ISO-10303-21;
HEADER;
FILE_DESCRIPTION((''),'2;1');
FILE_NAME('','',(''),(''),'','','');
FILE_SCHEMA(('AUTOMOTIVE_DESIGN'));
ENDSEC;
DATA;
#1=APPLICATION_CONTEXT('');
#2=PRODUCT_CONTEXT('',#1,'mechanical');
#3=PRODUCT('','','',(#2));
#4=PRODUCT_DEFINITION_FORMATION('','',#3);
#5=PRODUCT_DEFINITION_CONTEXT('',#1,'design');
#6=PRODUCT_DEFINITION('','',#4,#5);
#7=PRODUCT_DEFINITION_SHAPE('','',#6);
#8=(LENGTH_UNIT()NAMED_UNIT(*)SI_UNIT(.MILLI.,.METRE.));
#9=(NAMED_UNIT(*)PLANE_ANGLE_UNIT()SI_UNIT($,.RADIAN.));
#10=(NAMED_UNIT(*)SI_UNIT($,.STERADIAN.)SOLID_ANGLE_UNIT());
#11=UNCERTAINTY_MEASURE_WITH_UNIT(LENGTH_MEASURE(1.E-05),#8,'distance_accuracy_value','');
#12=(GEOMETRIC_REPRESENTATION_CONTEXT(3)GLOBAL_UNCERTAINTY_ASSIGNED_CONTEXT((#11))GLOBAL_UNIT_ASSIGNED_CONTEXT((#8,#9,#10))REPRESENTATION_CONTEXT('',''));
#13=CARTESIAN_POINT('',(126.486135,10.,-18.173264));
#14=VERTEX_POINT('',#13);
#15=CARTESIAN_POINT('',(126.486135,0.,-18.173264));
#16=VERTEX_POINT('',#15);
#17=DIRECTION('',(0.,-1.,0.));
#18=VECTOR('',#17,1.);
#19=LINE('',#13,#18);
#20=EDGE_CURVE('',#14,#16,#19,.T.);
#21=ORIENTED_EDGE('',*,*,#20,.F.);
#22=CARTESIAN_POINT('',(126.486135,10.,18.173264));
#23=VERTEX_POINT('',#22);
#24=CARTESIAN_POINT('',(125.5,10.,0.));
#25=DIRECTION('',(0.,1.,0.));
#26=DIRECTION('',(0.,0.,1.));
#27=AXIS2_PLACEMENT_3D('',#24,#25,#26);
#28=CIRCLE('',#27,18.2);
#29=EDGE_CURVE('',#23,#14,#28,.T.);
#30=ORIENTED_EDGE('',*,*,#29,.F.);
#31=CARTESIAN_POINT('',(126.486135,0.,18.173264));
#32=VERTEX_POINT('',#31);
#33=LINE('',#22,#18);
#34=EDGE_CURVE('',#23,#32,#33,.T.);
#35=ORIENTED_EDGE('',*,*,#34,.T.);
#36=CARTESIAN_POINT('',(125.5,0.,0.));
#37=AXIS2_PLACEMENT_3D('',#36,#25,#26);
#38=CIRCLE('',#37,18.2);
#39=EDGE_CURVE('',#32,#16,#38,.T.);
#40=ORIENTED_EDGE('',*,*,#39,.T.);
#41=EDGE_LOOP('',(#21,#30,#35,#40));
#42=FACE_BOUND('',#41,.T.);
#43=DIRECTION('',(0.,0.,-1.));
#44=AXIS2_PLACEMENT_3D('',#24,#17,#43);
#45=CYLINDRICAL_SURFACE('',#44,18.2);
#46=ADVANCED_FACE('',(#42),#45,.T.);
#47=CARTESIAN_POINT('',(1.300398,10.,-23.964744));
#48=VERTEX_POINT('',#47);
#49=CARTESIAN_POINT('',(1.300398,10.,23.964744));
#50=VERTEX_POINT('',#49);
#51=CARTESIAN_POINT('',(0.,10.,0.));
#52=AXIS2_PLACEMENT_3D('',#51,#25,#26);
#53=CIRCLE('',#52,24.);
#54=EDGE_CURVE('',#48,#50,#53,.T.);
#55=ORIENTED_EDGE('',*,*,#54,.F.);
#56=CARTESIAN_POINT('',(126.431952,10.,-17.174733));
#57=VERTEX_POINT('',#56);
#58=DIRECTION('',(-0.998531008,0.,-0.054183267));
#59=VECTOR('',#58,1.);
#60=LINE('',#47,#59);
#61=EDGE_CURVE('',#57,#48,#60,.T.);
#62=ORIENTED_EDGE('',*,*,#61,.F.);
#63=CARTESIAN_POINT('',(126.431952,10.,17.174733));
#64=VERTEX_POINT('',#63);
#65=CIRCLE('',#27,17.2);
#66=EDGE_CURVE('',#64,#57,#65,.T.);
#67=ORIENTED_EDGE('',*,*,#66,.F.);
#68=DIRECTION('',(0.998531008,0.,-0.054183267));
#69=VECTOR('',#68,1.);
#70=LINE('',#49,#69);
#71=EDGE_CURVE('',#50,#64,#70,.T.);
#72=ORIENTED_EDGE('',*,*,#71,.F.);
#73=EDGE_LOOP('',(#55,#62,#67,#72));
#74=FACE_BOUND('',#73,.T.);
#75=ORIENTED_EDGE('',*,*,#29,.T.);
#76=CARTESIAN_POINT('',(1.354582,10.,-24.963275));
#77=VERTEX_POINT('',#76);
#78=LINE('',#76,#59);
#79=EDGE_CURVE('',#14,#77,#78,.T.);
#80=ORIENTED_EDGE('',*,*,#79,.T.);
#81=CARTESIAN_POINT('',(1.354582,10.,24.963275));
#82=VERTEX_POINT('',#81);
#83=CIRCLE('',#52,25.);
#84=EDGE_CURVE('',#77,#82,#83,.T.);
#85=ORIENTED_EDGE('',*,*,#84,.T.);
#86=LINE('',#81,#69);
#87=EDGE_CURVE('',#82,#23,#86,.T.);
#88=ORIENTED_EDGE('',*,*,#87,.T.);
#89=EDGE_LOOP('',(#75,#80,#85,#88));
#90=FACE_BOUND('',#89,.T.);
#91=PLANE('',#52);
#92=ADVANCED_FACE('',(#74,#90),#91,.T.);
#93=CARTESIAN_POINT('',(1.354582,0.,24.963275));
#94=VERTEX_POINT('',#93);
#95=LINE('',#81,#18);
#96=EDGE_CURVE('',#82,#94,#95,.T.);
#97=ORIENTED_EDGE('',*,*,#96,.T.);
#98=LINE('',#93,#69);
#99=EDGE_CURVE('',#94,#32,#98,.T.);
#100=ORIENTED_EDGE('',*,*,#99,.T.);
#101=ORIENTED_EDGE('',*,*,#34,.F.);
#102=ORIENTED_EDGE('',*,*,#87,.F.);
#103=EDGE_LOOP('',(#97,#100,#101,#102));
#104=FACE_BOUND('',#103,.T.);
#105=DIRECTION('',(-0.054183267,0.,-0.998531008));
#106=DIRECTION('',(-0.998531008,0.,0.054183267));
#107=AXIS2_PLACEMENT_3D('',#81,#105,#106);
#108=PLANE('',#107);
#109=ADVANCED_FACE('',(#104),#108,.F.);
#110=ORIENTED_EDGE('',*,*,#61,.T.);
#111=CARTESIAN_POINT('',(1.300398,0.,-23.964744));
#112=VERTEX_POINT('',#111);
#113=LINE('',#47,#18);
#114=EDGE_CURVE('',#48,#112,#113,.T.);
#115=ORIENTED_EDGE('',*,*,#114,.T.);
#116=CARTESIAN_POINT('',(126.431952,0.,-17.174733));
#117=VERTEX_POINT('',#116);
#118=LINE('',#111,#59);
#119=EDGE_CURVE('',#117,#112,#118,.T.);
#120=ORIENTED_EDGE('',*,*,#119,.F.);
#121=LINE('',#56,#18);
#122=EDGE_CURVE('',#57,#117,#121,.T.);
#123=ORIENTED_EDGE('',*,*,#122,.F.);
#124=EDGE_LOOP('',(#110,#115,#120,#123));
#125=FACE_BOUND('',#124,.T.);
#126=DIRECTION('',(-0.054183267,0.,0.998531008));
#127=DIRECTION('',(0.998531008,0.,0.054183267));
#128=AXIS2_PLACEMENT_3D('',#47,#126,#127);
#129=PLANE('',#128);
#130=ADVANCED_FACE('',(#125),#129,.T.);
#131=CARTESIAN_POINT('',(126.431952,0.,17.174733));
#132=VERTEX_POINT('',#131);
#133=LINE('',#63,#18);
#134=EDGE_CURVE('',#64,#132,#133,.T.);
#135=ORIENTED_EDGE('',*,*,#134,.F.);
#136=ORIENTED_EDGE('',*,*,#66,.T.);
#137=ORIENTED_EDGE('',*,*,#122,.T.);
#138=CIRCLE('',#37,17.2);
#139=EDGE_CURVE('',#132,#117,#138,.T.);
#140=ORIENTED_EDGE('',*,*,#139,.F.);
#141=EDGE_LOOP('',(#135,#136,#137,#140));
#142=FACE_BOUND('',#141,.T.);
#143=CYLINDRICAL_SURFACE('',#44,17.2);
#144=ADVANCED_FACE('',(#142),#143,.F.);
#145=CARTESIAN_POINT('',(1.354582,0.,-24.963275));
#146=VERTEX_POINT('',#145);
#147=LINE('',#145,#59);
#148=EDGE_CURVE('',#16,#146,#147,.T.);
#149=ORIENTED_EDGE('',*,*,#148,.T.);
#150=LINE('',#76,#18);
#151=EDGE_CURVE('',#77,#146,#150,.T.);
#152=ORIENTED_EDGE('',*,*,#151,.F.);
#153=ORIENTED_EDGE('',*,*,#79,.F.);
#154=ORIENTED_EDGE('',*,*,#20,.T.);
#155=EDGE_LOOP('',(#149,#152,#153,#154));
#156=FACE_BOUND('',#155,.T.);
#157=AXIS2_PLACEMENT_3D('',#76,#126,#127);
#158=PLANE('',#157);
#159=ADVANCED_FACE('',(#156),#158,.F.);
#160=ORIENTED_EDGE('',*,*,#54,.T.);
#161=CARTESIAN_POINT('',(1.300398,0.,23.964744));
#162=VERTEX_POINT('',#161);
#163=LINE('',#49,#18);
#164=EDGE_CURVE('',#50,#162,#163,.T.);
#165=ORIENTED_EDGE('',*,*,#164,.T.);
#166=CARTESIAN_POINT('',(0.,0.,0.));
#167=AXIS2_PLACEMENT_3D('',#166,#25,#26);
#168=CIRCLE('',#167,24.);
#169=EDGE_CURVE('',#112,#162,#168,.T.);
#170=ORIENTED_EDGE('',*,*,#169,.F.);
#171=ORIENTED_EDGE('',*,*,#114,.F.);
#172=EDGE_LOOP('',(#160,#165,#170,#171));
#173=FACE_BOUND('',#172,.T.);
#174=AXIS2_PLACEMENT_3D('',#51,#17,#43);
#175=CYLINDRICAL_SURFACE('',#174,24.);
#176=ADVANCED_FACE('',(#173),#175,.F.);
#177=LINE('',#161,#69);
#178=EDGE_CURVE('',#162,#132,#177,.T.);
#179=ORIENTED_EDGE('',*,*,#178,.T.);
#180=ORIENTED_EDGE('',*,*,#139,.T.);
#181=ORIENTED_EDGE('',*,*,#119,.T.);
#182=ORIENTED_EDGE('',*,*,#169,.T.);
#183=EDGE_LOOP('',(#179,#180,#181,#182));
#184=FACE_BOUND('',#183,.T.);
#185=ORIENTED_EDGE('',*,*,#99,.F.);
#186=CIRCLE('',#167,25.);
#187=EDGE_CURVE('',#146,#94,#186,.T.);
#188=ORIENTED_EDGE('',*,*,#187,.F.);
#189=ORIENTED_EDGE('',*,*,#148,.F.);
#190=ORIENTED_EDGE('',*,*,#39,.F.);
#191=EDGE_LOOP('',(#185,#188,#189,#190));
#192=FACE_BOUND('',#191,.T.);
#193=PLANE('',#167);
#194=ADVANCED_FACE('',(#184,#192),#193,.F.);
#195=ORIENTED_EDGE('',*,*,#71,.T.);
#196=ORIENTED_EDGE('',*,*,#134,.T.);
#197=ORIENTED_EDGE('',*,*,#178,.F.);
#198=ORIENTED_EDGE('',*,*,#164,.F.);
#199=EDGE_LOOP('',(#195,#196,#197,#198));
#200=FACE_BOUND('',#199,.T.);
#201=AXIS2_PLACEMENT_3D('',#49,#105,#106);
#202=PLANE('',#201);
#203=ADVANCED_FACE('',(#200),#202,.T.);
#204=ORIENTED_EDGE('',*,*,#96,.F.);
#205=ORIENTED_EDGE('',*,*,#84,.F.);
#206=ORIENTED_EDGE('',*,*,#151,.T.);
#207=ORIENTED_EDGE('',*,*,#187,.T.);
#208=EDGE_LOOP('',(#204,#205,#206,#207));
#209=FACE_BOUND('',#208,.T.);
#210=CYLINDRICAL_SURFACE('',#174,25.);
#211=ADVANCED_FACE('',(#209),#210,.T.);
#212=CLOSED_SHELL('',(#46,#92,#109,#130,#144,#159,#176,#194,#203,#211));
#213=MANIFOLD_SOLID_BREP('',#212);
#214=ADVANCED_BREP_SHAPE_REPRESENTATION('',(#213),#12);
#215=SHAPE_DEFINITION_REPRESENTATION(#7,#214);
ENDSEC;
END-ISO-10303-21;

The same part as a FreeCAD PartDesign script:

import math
import FreeCAD as App
import Part
import Sketcher
from FreeCAD import Vector

doc = App.newDocument("Part")
params = doc.addObject("Spreadsheet::Sheet", "Params")
for row, (alias, value) in enumerate([
    ("sketch1_radius", "25 mm"),
    ("sketch1_radius2", "24 mm"),
    ("sketch1_radius3", "18.2 mm"),
    ("pad1_length", "10 mm"),
], start=1):
    params.set(f"A{row}", alias)
    params.set(f"B{row}", "=" + value)
    params.setAlias(f"B{row}", alias)

body = doc.addObject("PartDesign::Body", "Body")

# Sketch on XZ plane
sketch1 = body.newObject("Sketcher::SketchObject", "Sketch")
sketch1.AttachmentSupport = (doc.getObject("XZ_Plane"), [""])
sketch1.MapMode = "FlatFace"
sketch1.addGeometry([
    Part.LineSegment(Vector(126, -18, 0), Vector(1, -25, 0)),  # 0
    Part.ArcOfCircle(Part.Circle(Vector(0, 0, 0), Vector(0, 0, 1), 25), math.radians(87), math.radians(273)),  # 1
    Part.LineSegment(Vector(1, 25, 0), Vector(126, 18, 0)),  # 2
    Part.ArcOfCircle(Part.Circle(Vector(126, 0, 0), Vector(0, 0, 1), 18), math.radians(-87), math.radians(87)),  # 3
    Part.LineSegment(Vector(1, -24, 0), Vector(126, -17, 0)),  # 4
    Part.ArcOfCircle(Part.Circle(Vector(126, 0, 0), Vector(0, 0, 1), 17), math.radians(-87), math.radians(87)),  # 5
    Part.LineSegment(Vector(126, 17, 0), Vector(1, 24, 0)),  # 6
    Part.ArcOfCircle(Part.Circle(Vector(0, 0, 0), Vector(0, 0, 1), 24), math.radians(87), math.radians(273)),  # 7
], False)
sketch1.addConstraint([
    Sketcher.Constraint("Tangent", 0, 2, 1, 2),
    Sketcher.Constraint("Tangent", 1, 1, 2, 1),
    Sketcher.Constraint("Tangent", 2, 2, 3, 2),
    Sketcher.Constraint("Tangent", 3, 1, 0, 1),
    Sketcher.Constraint("Tangent", 4, 2, 5, 1),
    Sketcher.Constraint("Tangent", 5, 2, 6, 1),
    Sketcher.Constraint("Tangent", 6, 2, 7, 1),
    Sketcher.Constraint("Tangent", 7, 2, 4, 1),
    Sketcher.Constraint("Coincident", 1, 3, -1, 1),
    Sketcher.Constraint("Coincident", 7, 3, -1, 1),
    Sketcher.Constraint("Coincident", 5, 3, 3, 3),
    Sketcher.Constraint("PointOnObject", 3, 3, -1),
    Sketcher.Constraint("Parallel", 0, 4),
    Sketcher.Constraint("Radius", 1, 25.0),
    Sketcher.Constraint("Radius", 7, 24.0),
    Sketcher.Constraint("Radius", 3, 18.2),
    Sketcher.Constraint("DistanceX", -1, 1, 3, 3, 125.5),
])
sketch1.setExpression("Constraints[13]", "Params.sketch1_radius")
sketch1.setExpression("Constraints[14]", "Params.sketch1_radius2")
sketch1.setExpression("Constraints[15]", "Params.sketch1_radius3")
pad1 = body.newObject("PartDesign::Pad", "Pad")
pad1.Profile = sketch1
pad1.setExpression("Length", "Params.pad1_length")
pad1.Reversed = True

doc.recompute()
